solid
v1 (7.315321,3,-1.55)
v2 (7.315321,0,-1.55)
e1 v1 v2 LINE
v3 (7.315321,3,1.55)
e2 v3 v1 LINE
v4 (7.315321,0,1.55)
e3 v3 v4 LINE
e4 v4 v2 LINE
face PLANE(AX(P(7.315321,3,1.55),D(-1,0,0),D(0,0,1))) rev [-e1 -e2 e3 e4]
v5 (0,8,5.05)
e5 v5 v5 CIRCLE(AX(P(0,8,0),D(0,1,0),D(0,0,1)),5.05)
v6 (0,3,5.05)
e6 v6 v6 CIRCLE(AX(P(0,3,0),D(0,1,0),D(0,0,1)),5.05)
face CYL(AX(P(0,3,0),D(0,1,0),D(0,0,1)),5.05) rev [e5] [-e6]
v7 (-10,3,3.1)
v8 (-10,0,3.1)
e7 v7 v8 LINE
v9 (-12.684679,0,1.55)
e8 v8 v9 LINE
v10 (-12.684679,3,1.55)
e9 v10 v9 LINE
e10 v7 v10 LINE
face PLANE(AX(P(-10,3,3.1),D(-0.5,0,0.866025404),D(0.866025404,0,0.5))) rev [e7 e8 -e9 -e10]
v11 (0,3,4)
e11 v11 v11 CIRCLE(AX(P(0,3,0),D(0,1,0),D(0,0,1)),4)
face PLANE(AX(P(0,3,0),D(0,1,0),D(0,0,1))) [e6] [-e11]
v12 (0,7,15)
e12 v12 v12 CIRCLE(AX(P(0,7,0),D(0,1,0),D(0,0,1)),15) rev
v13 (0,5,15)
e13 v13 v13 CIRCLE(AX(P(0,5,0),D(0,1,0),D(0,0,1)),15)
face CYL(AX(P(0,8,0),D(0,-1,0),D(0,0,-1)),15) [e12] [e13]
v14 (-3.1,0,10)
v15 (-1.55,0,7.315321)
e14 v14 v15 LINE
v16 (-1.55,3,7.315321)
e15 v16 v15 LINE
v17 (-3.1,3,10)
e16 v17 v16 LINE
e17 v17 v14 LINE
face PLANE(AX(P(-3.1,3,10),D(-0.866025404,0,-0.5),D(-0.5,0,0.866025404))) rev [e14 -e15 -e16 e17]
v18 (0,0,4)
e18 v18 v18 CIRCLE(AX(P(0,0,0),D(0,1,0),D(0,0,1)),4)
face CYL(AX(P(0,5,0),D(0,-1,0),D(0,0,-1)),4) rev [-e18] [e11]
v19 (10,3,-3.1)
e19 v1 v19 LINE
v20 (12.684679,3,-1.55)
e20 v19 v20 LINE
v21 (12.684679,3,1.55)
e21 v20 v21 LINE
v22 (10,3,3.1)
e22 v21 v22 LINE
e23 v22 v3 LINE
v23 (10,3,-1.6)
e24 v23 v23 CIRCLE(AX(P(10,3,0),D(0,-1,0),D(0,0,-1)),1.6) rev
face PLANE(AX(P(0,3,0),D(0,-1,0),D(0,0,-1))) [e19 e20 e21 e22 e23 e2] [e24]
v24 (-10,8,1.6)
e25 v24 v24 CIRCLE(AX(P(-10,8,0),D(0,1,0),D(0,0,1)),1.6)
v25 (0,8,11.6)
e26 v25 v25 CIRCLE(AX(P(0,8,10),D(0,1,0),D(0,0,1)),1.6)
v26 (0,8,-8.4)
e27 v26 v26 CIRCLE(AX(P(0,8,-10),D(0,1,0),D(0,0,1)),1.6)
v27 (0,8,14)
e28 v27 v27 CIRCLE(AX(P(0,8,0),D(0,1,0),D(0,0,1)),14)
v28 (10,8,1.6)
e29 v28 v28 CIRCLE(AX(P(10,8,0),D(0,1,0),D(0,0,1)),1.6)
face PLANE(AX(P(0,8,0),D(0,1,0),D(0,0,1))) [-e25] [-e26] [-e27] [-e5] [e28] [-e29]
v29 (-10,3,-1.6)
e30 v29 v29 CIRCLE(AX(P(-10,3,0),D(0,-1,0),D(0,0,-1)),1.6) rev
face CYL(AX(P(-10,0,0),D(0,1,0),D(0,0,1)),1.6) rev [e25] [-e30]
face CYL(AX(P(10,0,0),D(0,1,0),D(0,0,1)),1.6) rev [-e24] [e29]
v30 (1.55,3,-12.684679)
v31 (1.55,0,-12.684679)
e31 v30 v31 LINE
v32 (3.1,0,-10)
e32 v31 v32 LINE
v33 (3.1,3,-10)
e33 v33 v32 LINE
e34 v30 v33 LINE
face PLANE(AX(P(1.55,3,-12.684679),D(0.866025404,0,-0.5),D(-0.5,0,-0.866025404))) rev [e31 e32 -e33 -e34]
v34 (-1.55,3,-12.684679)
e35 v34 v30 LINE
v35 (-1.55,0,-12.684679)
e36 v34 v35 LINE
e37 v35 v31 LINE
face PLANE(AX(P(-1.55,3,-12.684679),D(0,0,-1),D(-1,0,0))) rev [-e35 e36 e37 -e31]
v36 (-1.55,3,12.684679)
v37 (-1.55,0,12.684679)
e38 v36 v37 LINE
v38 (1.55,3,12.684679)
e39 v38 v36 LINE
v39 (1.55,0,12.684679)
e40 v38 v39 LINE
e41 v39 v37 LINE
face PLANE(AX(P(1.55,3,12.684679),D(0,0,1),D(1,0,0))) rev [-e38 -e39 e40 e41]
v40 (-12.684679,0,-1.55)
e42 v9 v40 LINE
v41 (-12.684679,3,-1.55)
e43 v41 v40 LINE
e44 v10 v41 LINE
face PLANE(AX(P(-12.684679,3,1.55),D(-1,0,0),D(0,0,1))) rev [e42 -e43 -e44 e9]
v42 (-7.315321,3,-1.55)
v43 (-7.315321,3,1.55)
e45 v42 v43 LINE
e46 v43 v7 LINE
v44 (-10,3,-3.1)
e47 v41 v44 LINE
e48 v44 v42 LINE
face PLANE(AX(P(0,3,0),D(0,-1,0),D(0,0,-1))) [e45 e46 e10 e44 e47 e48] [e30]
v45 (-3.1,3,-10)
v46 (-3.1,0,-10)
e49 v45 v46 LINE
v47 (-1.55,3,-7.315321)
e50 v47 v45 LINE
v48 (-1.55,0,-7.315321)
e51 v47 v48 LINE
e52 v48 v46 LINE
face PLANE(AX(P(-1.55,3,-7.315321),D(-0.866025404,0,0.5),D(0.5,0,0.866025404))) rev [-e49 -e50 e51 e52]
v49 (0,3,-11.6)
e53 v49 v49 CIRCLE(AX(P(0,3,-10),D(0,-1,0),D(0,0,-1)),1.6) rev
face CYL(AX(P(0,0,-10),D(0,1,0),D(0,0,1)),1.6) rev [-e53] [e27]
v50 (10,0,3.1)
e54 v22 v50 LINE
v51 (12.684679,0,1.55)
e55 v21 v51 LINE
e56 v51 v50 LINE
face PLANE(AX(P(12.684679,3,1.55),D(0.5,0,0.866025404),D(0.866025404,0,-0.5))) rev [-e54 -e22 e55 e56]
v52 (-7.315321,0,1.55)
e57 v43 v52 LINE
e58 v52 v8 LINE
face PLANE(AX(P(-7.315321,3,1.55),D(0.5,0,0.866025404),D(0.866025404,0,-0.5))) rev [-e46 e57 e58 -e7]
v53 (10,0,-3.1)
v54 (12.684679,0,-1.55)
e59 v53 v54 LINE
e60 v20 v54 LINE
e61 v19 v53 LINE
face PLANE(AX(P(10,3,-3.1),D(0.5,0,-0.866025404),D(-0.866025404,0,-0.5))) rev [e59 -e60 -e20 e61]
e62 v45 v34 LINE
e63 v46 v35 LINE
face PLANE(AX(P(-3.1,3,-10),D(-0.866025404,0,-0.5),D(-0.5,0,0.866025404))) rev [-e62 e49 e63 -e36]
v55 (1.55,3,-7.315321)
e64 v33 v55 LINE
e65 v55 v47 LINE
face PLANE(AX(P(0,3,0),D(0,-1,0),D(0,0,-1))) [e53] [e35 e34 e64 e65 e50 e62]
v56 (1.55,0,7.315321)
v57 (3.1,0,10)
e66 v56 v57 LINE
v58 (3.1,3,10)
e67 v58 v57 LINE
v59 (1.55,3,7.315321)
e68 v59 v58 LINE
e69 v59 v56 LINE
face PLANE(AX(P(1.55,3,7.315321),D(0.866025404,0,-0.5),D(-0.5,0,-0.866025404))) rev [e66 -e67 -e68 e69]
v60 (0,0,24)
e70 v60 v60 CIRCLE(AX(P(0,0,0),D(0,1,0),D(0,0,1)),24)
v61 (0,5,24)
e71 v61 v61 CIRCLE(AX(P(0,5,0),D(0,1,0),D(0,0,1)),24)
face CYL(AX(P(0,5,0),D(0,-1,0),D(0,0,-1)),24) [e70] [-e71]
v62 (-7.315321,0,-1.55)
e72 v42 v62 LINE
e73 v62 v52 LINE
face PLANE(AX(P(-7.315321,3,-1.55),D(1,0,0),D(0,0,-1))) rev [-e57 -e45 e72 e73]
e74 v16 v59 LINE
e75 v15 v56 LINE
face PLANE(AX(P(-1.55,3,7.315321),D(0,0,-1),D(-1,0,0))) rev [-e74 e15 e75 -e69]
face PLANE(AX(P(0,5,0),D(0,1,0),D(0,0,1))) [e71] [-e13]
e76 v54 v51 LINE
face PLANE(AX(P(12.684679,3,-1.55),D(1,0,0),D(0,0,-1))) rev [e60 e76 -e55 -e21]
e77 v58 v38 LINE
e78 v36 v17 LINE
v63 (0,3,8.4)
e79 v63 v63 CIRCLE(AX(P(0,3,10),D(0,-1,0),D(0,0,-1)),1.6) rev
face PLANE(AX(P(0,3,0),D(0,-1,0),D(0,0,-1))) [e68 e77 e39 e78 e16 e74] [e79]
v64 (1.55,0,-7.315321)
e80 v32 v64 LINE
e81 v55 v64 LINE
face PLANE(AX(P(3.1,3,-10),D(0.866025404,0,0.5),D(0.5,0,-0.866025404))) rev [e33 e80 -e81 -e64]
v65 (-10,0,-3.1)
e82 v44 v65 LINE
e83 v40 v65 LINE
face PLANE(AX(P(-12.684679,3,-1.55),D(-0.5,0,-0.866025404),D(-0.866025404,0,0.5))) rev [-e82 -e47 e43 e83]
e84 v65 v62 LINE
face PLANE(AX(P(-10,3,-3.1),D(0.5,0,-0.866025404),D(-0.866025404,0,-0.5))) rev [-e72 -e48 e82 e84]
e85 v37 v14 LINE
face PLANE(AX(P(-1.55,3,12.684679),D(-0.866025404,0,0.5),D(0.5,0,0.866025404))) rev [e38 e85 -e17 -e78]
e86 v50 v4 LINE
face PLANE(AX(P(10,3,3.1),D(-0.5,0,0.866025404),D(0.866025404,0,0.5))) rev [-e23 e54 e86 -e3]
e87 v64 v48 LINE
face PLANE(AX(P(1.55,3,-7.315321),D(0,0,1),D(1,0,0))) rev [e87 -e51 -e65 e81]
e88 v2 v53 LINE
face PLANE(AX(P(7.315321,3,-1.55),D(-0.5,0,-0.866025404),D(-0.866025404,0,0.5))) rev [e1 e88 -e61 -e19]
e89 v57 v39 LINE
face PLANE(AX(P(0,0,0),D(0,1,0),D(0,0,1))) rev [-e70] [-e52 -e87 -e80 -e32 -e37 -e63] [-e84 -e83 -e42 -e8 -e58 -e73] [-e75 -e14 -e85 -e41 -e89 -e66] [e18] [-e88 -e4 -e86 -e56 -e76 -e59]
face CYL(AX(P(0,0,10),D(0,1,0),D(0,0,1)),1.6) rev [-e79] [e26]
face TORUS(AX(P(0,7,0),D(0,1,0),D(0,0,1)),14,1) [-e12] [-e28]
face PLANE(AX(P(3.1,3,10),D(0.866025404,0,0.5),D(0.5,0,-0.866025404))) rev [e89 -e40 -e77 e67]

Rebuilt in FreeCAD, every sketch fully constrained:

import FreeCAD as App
import Part
import Sketcher
Q = App.Units.Quantity


def edges_at(feature, points):
    """Names of the edges that pass closest to the given points."""
    edges = feature.Shape.Edges
    near = lambda p: min(range(len(edges)), key=lambda i: edges[i].distToShape(Part.Vertex(*p))[0])
    return sorted({f"Edge{near(p) + 1}" for p in points})


def add_polygon(sketch, points):
    """Adds a closed chain of lines whose ends are joined by coincident constraints."""
    first, n = sketch.GeometryCount, len(points)
    for a, b in zip(points, points[1:] + points[:1]):
        sketch.addGeometry(Part.LineSegment(App.Vector(*a, 0), App.Vector(*b, 0)), False)
    for i in range(n):
        sketch.addConstraint(Sketcher.Constraint("Coincident", first + i, 2, first + (i + 1) % n, 1))

doc = App.newDocument("Part")
params = doc.addObject("Spreadsheet::Sheet", "Params")
for row, (alias, value) in enumerate([
    ("sketch1_diameter", "48 mm"),
    ("sketch1_diameter2", "8 mm"),
    ("pad1_length", "5 mm"),
    ("sketch2_diameter", "30 mm"),
    ("pad2_length", "3 mm"),
    ("sketch3_diameter", "10.1 mm"),
    ("pocket1_length", "5 mm"),
    ("fillet_radius", "1 mm"),
    ("sketch4_diameter", "3.2 mm"),
    ("sketch5_width", "3.1 mm"),
    ("sketch5_length", "3.1 mm"),
    ("pocket3_length", "3 mm"),
], start=1):
    params.set(f"A{row}", alias)
    params.set(f"B{row}", "=" + value)
    params.setAlias(f"B{row}", alias)

body = doc.addObject("PartDesign::Body", "Body")

sketch1 = body.newObject("Sketcher::SketchObject", "Sketch")
sketch1.AttachmentSupport = (doc.getObject("XZ_Plane"), [""])
sketch1.MapMode = "FlatFace"
sketch1.addGeometry([
    Part.Circle(App.Vector(0, 0, 0), App.Vector(0, 0, 1), 24),
    Part.Circle(App.Vector(0, 0, 0), App.Vector(0, 0, 1), 4),
], False)
sketch1.addConstraint([
    Sketcher.Constraint("Coincident", 0, 3, -1, 1),
    Sketcher.Constraint("Coincident", 1, 3, -1, 1),
    Sketcher.Constraint("Diameter", 0, Q("48 mm")),
    Sketcher.Constraint("Diameter", 1, Q("8 mm")),
])
sketch1.setExpression("Constraints[2]", "Params.sketch1_diameter")
sketch1.setExpression("Constraints[3]", "Params.sketch1_diameter2")
pad1 = body.newObject("PartDesign::Pad", "Pad")
pad1.Profile = sketch1
pad1.setExpression("Length", "Params.pad1_length")
pad1.Reversed = True

sketch2 = body.newObject("Sketcher::SketchObject", "Sketch001")
sketch2.AttachmentSupport = (doc.getObject("XZ_Plane"), [""])
sketch2.MapMode = "FlatFace"
sketch2.AttachmentOffset = App.Placement(App.Vector(0, 0, -5), App.Rotation())
sketch2.addGeometry(Part.Circle(App.Vector(0, 0, 0), App.Vector(0, 0, 1), 15), False)
sketch2.addConstraint([
    Sketcher.Constraint("Coincident", 0, 3, -1, 1),
    Sketcher.Constraint("Diameter", 0, Q("30 mm")),
])
sketch2.setExpression("Constraints[1]", "Params.sketch2_diameter")
pad2 = body.newObject("PartDesign::Pad", "Pad001")
pad2.Profile = sketch2
pad2.setExpression("Length", "Params.pad2_length")
pad2.Reversed = True

sketch3 = body.newObject("Sketcher::SketchObject", "Sketch002")
sketch3.AttachmentSupport = (doc.getObject("XZ_Plane"), [""])
sketch3.MapMode = "FlatFace"
sketch3.AttachmentOffset = App.Placement(App.Vector(0, 0, -8), App.Rotation())
sketch3.addGeometry(Part.Circle(App.Vector(0, 0, 0), App.Vector(0, 0, 1), 5), False)
sketch3.addConstraint([
    Sketcher.Constraint("Coincident", 0, 3, -1, 1),
    Sketcher.Constraint("Diameter", 0, Q("10.1 mm")),
])
sketch3.setExpression("Constraints[1]", "Params.sketch3_diameter")
pocket1 = body.newObject("PartDesign::Pocket", "Pocket")
pocket1.Profile = sketch3
pocket1.setExpression("Length", "Params.pocket1_length")
pocket1.Reversed = True
doc.recompute()

fillet = body.newObject("PartDesign::Fillet", "Fillet")
fillet.Base = (pocket1, edges_at(pocket1, [(0, 8, -15)]))
fillet.setExpression("Radius", "Params.fillet_radius")

sketch4 = body.newObject("Sketcher::SketchObject", "Sketch003")
sketch4.AttachmentSupport = (doc.getObject("XZ_Plane"), [""])
sketch4.MapMode = "FlatFace"
sketch4.AttachmentOffset = App.Placement(App.Vector(0, 0, -8), App.Rotation())
sketch4.addGeometry([
    Part.Circle(App.Vector(0, -10, 0), App.Vector(0, 0, 1), 1.6),
    Part.Circle(App.Vector(-10, 0, 0), App.Vector(0, 0, 1), 1.6),
    Part.Circle(App.Vector(0, 10, 0), App.Vector(0, 0, 1), 1.6),
    Part.Circle(App.Vector(10, 0, 0), App.Vector(0, 0, 1), 1.6),
], False)
sketch4.addConstraint([
    Sketcher.Constraint("Equal", 0, 1),
    Sketcher.Constraint("Equal", 1, 2),
    Sketcher.Constraint("Equal", 2, 3),
    Sketcher.Constraint("Symmetric", 0, 3, 2, 3, -1, 1),
    Sketcher.Constraint("Symmetric", 1, 3, 3, 3, -1, 1),
    Sketcher.Constraint("PointOnObject", 0, 3, -2),
    Sketcher.Constraint("PointOnObject", 1, 3, -1),
    Sketcher.Constraint("Diameter", 0, Q("3.2 mm")),
    Sketcher.Constraint("DistanceY", 0, 3, -1, 1, Q("10 mm")),
    Sketcher.Constraint("DistanceX", 1, 3, -1, 1, Q("10 mm")),
])
sketch4.setExpression("Constraints[7]", "Params.sketch4_diameter")
pocket2 = body.newObject("PartDesign::Pocket", "Pocket001")
pocket2.Profile = sketch4
pocket2.Type = "ThroughAll"
pocket2.Reversed = True

sketch5 = body.newObject("Sketcher::SketchObject", "Sketch004")
sketch5.AttachmentSupport = (doc.getObject("XZ_Plane"), [""])
sketch5.MapMode = "FlatFace"
add_polygon(sketch5, [(10, -3.1), (12.7, -1.6), (12.7, 1.6), (10, 3.1), (7.3, 1.6), (7.3, -1.6)])
add_polygon(sketch5, [(3.1, 10), (1.6, 12.7), (-1.6, 12.7), (-3.1, 10), (-1.6, 7.3), (1.6, 7.3)])
add_polygon(sketch5, [(-3.1, -10), (-1.6, -12.7), (1.6, -12.7), (3.1, -10), (1.6, -7.3), (-1.6, -7.3)])
add_polygon(sketch5, [(-10, 3.1), (-12.7, 1.6), (-12.7, -1.6), (-10, -3.1), (-7.3, -1.6), (-7.3, 1.6)])
sketch5.addConstraint([
    Sketcher.Constraint("Vertical", 1),
    Sketcher.Constraint("Vertical", 4),
    Sketcher.Constraint("Horizontal", 7),
    Sketcher.Constraint("Horizontal", 10),
    Sketcher.Constraint("Horizontal", 13),
    Sketcher.Constraint("Horizontal", 16),
    Sketcher.Constraint("Vertical", 19),
    Sketcher.Constraint("Vertical", 22),
    Sketcher.Constraint("Symmetric", 6, 2, 12, 2, -1, 1),
    Sketcher.Constraint("Symmetric", 8, 2, 14, 2, -1, 1),
    Sketcher.Constraint("Symmetric", 9, 2, 15, 2, -1, 1),
    Sketcher.Constraint("Symmetric", 11, 2, 17, 2, -1, 1),
    Sketcher.Constraint("Symmetric", 0, 2, 18, 2, -1, 1),
    Sketcher.Constraint("Symmetric", 2, 2, 20, 2, -1, 1),
    Sketcher.Constraint("Symmetric", 3, 2, 21, 2, -1, 1),
    Sketcher.Constraint("Symmetric", 5, 2, 23, 2, -1, 1),
    Sketcher.Constraint("Symmetric", 8, 2, 11, 2, -2),
    Sketcher.Constraint("Symmetric", 5, 2, 20, 2, -2),
    Sketcher.Constraint("Parallel", 0, 3),
    Sketcher.Constraint("Parallel", 2, 5),
    Sketcher.Constraint("Perpendicular", 3, 6),
    Sketcher.Constraint("Perpendicular", 5, 8),
    Sketcher.Constraint("Parallel", 6, 9),
    Sketcher.Constraint("Parallel", 8, 11),
    Sketcher.Constraint("Parallel", 11, 14),
    Sketcher.Constraint("Parallel", 14, 17),
    Sketcher.Constraint("Perpendicular", 17, 20),
    Sketcher.Constraint("Parallel", 20, 23),
    Sketcher.Constraint("Horizontal", 1, 2, 3, 2),
    Sketcher.Constraint("Horizontal", 0, 2, 4, 2),
    Sketcher.Constraint("Vertical", 7, 2, 9, 2),
    Sketcher.Constraint("Equal", 16, 1),
    Sketcher.Constraint("Equal", 5, 6),
    Sketcher.Constraint("Angle", 0, Q("30 deg")),
    Sketcher.Constraint("DistanceX", 7, 2, 7, 1, Q("3.1 mm")),
    Sketcher.Constraint("DistanceX", -1, 1, 2, 2, Q("10 mm")),
    Sketcher.Constraint("DistanceY", -1, 1, 8, 2, Q("10 mm")),
    Sketcher.Constraint("Distance", 0, Q("3.1 mm")),
])
sketch5.setExpression("Constraints[58]", "Params.sketch5_width")
sketch5.setExpression("Constraints[61]", "Params.sketch5_length")
pocket3 = body.newObject("PartDesign::Pocket", "Pocket002")
pocket3.Profile = sketch5
pocket3.setExpression("Length", "Params.pocket3_length")

doc.recompute()
